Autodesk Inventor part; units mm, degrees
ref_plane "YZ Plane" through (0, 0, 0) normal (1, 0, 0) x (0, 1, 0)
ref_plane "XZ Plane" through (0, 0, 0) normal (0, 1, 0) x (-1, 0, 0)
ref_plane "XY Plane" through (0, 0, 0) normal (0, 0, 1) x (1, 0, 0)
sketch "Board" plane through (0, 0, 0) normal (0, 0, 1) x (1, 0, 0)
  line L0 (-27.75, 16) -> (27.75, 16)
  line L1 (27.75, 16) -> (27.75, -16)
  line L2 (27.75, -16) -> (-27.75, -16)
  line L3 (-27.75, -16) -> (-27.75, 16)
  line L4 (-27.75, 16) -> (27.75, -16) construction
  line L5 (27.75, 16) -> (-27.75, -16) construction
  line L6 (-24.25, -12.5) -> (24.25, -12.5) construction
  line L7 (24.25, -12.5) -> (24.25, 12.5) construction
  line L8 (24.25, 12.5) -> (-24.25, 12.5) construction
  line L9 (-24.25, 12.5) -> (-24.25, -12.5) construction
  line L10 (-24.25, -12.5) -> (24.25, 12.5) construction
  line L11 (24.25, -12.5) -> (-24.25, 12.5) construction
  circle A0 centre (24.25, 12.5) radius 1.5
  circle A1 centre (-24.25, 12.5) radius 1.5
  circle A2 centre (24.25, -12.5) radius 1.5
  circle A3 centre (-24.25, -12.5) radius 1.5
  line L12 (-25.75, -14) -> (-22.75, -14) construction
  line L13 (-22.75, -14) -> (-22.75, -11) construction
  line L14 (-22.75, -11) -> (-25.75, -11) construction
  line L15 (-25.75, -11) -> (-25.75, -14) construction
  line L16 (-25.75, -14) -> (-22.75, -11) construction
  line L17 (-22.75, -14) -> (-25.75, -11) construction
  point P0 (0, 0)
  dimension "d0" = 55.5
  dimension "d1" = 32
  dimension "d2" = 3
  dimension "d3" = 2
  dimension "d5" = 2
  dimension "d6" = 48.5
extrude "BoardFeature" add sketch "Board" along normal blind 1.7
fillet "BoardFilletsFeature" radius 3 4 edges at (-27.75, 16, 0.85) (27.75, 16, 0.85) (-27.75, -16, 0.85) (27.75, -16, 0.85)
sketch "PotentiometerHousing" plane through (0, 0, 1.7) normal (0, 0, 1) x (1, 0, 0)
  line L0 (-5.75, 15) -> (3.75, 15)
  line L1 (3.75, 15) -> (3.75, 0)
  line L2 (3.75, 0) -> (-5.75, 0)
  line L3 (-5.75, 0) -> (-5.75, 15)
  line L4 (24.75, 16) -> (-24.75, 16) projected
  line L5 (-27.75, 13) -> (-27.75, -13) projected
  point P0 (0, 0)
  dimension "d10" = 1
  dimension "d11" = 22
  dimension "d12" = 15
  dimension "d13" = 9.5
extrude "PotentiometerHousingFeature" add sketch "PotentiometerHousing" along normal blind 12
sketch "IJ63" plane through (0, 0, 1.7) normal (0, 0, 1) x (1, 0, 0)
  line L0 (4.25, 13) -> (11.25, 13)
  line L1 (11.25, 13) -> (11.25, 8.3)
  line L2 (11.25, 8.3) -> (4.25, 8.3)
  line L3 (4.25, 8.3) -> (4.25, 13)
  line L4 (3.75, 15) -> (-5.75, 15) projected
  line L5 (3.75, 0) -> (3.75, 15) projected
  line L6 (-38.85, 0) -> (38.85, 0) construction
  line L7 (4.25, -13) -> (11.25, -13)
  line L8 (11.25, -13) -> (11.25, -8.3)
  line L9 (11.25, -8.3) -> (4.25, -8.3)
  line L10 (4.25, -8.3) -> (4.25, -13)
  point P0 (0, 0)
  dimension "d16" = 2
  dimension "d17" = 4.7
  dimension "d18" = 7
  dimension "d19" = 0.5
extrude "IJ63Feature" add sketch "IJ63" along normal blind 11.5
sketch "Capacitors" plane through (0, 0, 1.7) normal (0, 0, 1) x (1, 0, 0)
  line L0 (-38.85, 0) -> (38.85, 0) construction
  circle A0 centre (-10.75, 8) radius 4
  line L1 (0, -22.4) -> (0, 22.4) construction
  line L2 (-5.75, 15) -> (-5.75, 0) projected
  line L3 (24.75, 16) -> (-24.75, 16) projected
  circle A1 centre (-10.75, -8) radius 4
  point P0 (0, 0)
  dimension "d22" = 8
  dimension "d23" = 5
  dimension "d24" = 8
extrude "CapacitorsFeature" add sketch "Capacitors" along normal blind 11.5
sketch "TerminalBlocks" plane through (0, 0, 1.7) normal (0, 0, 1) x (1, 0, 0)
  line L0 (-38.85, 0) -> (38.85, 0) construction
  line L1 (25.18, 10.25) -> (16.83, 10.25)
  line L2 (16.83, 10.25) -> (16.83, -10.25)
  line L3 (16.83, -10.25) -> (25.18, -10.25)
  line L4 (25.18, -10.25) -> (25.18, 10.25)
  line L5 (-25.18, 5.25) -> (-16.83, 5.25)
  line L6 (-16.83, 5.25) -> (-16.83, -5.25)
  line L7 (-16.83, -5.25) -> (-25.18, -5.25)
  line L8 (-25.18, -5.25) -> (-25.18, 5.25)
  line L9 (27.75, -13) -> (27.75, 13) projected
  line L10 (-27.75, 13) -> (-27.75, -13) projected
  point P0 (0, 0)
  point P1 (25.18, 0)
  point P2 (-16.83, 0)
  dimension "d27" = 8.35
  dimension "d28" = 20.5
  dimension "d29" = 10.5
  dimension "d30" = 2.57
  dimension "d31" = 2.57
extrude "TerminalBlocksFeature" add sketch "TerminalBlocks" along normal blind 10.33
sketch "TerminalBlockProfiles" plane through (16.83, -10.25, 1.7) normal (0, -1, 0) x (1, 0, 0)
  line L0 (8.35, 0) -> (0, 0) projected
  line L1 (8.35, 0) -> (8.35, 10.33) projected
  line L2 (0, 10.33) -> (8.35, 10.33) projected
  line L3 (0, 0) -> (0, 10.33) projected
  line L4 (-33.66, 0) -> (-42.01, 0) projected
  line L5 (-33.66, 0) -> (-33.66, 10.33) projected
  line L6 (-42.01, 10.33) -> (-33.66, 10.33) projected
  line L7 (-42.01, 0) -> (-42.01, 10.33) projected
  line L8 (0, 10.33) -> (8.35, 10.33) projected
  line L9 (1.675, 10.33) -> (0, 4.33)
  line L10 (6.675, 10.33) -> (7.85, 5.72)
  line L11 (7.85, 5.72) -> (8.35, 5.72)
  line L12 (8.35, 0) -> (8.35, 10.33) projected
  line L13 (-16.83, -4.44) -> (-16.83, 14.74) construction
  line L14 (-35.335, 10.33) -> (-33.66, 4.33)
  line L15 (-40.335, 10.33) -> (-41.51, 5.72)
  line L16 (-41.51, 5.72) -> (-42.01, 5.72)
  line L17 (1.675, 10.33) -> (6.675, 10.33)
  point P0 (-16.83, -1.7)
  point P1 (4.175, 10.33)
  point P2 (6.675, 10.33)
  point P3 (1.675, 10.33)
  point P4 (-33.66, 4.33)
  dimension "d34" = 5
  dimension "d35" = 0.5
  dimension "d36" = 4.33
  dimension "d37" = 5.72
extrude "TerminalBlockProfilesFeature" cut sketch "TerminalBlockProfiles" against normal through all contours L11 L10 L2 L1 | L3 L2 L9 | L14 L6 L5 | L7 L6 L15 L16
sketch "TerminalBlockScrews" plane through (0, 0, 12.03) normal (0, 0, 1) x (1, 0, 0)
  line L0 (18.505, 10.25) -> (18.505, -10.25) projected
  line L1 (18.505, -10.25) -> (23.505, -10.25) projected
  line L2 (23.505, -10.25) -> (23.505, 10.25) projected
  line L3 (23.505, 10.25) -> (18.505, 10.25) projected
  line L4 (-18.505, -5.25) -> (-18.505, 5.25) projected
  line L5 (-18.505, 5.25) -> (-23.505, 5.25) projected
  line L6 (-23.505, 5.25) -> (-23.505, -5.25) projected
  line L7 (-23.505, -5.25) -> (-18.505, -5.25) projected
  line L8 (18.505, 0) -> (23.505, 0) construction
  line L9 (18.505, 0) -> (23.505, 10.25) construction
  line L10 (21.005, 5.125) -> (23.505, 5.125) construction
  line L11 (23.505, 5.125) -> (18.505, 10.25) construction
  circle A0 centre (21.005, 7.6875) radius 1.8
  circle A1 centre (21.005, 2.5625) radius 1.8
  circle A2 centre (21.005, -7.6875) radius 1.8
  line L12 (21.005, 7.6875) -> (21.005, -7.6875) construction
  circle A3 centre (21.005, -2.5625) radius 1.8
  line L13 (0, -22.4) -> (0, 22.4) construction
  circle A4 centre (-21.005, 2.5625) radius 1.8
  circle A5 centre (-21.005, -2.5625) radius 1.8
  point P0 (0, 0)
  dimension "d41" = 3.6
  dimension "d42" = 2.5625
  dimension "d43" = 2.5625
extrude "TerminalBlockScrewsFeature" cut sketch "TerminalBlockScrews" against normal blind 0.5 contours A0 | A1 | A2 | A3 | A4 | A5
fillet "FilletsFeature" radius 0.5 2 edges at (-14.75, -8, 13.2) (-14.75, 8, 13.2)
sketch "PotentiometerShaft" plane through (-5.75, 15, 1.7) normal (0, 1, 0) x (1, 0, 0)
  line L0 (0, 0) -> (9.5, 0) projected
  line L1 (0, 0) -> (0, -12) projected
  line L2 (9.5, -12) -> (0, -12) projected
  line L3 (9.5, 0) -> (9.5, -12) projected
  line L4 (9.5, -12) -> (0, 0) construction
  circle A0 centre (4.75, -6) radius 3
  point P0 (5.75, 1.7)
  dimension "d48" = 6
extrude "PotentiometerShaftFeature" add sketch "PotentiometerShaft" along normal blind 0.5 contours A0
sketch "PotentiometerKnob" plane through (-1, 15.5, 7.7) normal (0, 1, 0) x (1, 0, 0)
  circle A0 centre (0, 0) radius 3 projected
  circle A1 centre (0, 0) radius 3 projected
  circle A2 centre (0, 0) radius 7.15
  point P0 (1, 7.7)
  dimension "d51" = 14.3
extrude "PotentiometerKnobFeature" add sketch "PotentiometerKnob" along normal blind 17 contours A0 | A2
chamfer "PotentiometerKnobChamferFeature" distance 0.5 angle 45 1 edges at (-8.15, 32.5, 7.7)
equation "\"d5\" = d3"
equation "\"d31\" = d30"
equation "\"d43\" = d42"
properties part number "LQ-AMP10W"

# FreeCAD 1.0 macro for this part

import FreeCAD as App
import Part
import Sketcher
from FreeCAD import Vector
Q = App.Units.Quantity


def edges_at(feature, points):
    """Names of the edges that pass closest to the given points."""
    edges = feature.Shape.Edges
    near = lambda p: min(range(len(edges)), key=lambda i: edges[i].distToShape(Part.Vertex(*p))[0])
    return sorted({f"Edge{near(p) + 1}" for p in points})


def add_polygon(sketch, points):
    """Adds a closed chain of lines whose ends are joined by coincident constraints."""
    first, n = sketch.GeometryCount, len(points)
    for a, b in zip(points, points[1:] + points[:1]):
        sketch.addGeometry(Part.LineSegment(App.Vector(*a, 0), App.Vector(*b, 0)), False)
    for i in range(n):
        sketch.addConstraint(Sketcher.Constraint("Coincident", first + i, 2, first + (i + 1) % n, 1))

doc = App.newDocument("Part")
body = doc.addObject("PartDesign::Body", "Body")

sketch1 = doc.addObject("Sketcher::SketchObject", "Sketch")
body.addObject(sketch1)
sketch1.AttachmentSupport = (doc.XY_Plane, [""])
sketch1.MapMode = "FlatFace"
add_polygon(sketch1, [(27.75, 16), (-27.75, 16), (-27.75, -16), (27.75, -16)])
sketch1.addGeometry(Part.Circle(Vector(-24.25, -12.5, 0), Vector(0, 0, 1), 1.5), False)
sketch1.addGeometry(Part.Circle(Vector(24.25, -12.5, 0), Vector(0, 0, 1), 1.5), False)
sketch1.addGeometry(Part.Circle(Vector(-24.25, 12.5, 0), Vector(0, 0, 1), 1.5), False)
sketch1.addGeometry(Part.Circle(Vector(24.25, 12.5, 0), Vector(0, 0, 1), 1.5), False)
sketch1.addConstraint([
    Sketcher.Constraint("Horizontal", 0),
    Sketcher.Constraint("Vertical", 1),
    Sketcher.Constraint("Horizontal", 2),
    Sketcher.Constraint("Vertical", 3),
    Sketcher.Constraint("Equal", 4, 5),
    Sketcher.Constraint("Equal", 5, 6),
    Sketcher.Constraint("Equal", 6, 7),
    Sketcher.Constraint("Symmetric", 5, 3, 6, 3, -1, 1),
    Sketcher.Constraint("Symmetric", 4, 3, 7, 3, -1, 1),
    Sketcher.Constraint("Symmetric", 0, 2, 2, 2, -1, 1),
    Sketcher.Constraint("Symmetric", 4, 3, 5, 3, -2),
    Sketcher.Constraint("Diameter", 4, 3.0),
    Sketcher.Constraint("DistanceY", 1, 2, 1, 1, 32.0),
    Sketcher.Constraint("DistanceX", 0, 2, 0, 1, 55.5),
    Sketcher.Constraint("DistanceX", 4, 3, 5, 3, 48.5),
    Sketcher.Constraint("DistanceY", 4, 3, 6, 3, 25.0),
])
pad1 = doc.addObject("PartDesign::Pad", "Pad")
body.addObject(pad1)
pad1.Profile = sketch1
pad1.Length = 1.7
doc.recompute()

fillet = doc.addObject("PartDesign::Fillet", "Fillet")
body.addObject(fillet)
fillet.Base = (pad1, edges_at(pad1, [
    (-27.75, 16, 0.85),
    (27.75, 16, 0.85),
    (-27.75, -16, 0.85),
    (27.75, -16, 0.85),
]))
fillet.Radius = 3

sketch2 = doc.addObject("Sketcher::SketchObject", "Sketch001")
body.addObject(sketch2)
sketch2.AttachmentSupport = (doc.XY_Plane, [""])
sketch2.MapMode = "FlatFace"
sketch2.AttachmentOffset = App.Placement(Vector(0, 0, 1.7), App.Rotation())
add_polygon(sketch2, [(3.75, 15), (-5.75, 15), (-5.75, 0), (3.75, 0)])
sketch2.addConstraint([
    Sketcher.Constraint("Horizontal", 0),
    Sketcher.Constraint("Vertical", 1),
    Sketcher.Constraint("Horizontal", 2),
    Sketcher.Constraint("Vertical", 3),
    Sketcher.Constraint("PointOnObject", 1, 2, -1),
    Sketcher.Constraint("DistanceY", 1, 2, 1, 1, 15.0),
    Sketcher.Constraint("DistanceX", 0, 2, 0, 1, 9.5),
    Sketcher.Constraint("DistanceX", 0, 2, -1, 1, 5.75),
])
pad2 = doc.addObject("PartDesign::Pad", "Pad001")
body.addObject(pad2)
pad2.Profile = sketch2
pad2.Length = 12

sketch3 = doc.addObject("Sketcher::SketchObject", "Sketch002")
body.addObject(sketch3)
sketch3.AttachmentSupport = (doc.XY_Plane, [""])
sketch3.MapMode = "FlatFace"
sketch3.AttachmentOffset = App.Placement(Vector(0, 0, 1.7), App.Rotation())
add_polygon(sketch3, [(11.25, 13), (4.25, 13), (4.25, 8.3), (11.25, 8.3)])
add_polygon(sketch3, [(4.25, -8.3), (4.25, -13), (11.25, -13), (11.25, -8.3)])
sketch3.addConstraint([
    Sketcher.Constraint("Horizontal", 0),
    Sketcher.Constraint("Vertical", 1),
    Sketcher.Constraint("Horizontal", 2),
    Sketcher.Constraint("Vertical", 3),
    Sketcher.Constraint("Vertical", 4),
    Sketcher.Constraint("Horizontal", 5),
    Sketcher.Constraint("Vertical", 6),
    Sketcher.Constraint("Horizontal", 7),
    Sketcher.Constraint("Symmetric", 0, 2, 4, 2, -1),
    Sketcher.Constraint("Symmetric", 2, 2, 6, 2, -1),
    Sketcher.Constraint("DistanceX", 0, 2, 0, 1, 7.0),
    Sketcher.Constraint("DistanceY", 1, 2, 1, 1, 4.7),
    Sketcher.Constraint("DistanceY", -1, 1, 0, 2, 13.0),
    Sketcher.Constraint("DistanceX", -1, 1, 0, 2, 4.25),
])
pad3 = doc.addObject("PartDesign::Pad", "Pad002")
body.addObject(pad3)
pad3.Profile = sketch3
pad3.Length = 11.5

sketch4 = doc.addObject("Sketcher::SketchObject", "Sketch003")
body.addObject(sketch4)
sketch4.AttachmentSupport = (doc.XY_Plane, [""])
sketch4.MapMode = "FlatFace"
sketch4.AttachmentOffset = App.Placement(Vector(0, 0, 1.7), App.Rotation())
sketch4.addGeometry([
    Part.Circle(Vector(-10.75, 8, 0), Vector(0, 0, 1), 4),
    Part.Circle(Vector(-10.75, -8, 0), Vector(0, 0, 1), 4),
], False)
sketch4.addConstraint([
    Sketcher.Constraint("Equal", 0, 1),
    Sketcher.Constraint("Symmetric", 0, 3, 1, 3, -1),
    Sketcher.Constraint("Diameter", 0, 8.0),
    Sketcher.Constraint("DistanceY", -1, 1, 0, 3, 8.0),
    Sketcher.Constraint("DistanceX", 0, 3, -1, 1, 10.75),
])
pad4 = doc.addObject("PartDesign::Pad", "Pad003")
body.addObject(pad4)
pad4.Profile = sketch4
pad4.Length = 11.5

sketch5 = doc.addObject("Sketcher::SketchObject", "Sketch004")
body.addObject(sketch5)
sketch5.AttachmentSupport = (doc.XY_Plane, [""])
sketch5.MapMode = "FlatFace"
sketch5.AttachmentOffset = App.Placement(Vector(0, 0, 1.7), App.Rotation())
add_polygon(sketch5, [(25.18, -10.25), (25.18, 10.25), (16.83, 10.25), (16.83, -10.25)])
add_polygon(sketch5, [(-16.83, 5.25), (-25.18, 5.25), (-25.18, -5.25), (-16.83, -5.25)])
sketch5.addConstraint([
    Sketcher.Constraint("Vertical", 0),
    Sketcher.Constraint("Horizontal", 1),
    Sketcher.Constraint("Vertical", 2),
    Sketcher.Constraint("Horizontal", 3),
    Sketcher.Constraint("Horizontal", 4),
    Sketcher.Constraint("Vertical", 5),
    Sketcher.Constraint("Horizontal", 6),
    Sketcher.Constraint("Vertical", 7),
    Sketcher.Constraint("Equal", 3, 4),
    Sketcher.Constraint("DistanceY", 0, 1, 0, 2, 20.5),
    Sketcher.Constraint("DistanceY", 5, 2, 5, 1, 10.5),
    Sketcher.Constraint("DistanceX", 1, 2, 1, 1, 8.35),
    Sketcher.Constraint("DistanceY", 4, 2, 1, 2, 5.0),
    Sketcher.Constraint("DistanceX", -1, 1, 0, 2, 25.18),
    Sketcher.Constraint("DistanceY", -1, 1, 0, 2, 10.25),
    Sketcher.Constraint("DistanceX", 4, 2, -1, 1, 25.18),
])
pad5 = doc.addObject("PartDesign::Pad", "Pad004")
body.addObject(pad5)
pad5.Profile = sketch5
pad5.Length = 10.33

sketch6 = doc.addObject("Sketcher::SketchObject", "Sketch005")
body.addObject(sketch6)
sketch6.AttachmentSupport = (doc.XZ_Plane, [""])
sketch6.MapMode = "FlatFace"
sketch6.AttachmentOffset = App.Placement(Vector(0, 0, 10.25), App.Rotation())
add_polygon(sketch6, [(24.68, 7.42), (25.18, 7.42), (25.18, 12.03), (23.505, 12.03)])
add_polygon(sketch6, [(16.83, 12.03), (16.83, 6.03), (18.505, 12.03)])
add_polygon(sketch6, [(-18.505, 12.03), (-16.83, 6.03), (-16.83, 12.03)])
add_polygon(sketch6, [(-25.18, 12.03), (-25.18, 7.42), (-24.68, 7.42), (-23.505, 12.03)])
sketch6.addConstraint([
    Sketcher.Constraint("Horizontal", 0),
    Sketcher.Constraint("Vertical", 1),
    Sketcher.Constraint("Horizontal", 2),
    Sketcher.Constraint("Vertical", 4),
    Sketcher.Constraint("Horizontal", 6),
    Sketcher.Constraint("Vertical", 8),
    Sketcher.Constraint("Horizontal", 9),
    Sketcher.Constraint("Vertical", 10),
    Sketcher.Constraint("Horizontal", 11),
    Sketcher.Constraint("Horizontal", 13),
    Sketcher.Constraint("Symmetric", 4, 2, 7, 2, -2),
    Sketcher.Constraint("Symmetric", 5, 2, 9, 2, -2),
    Sketcher.Constraint("Symmetric", 0, 2, 10, 2, -2),
    Sketcher.Constraint("Symmetric", 2, 2, 12, 2, -2),
    Sketcher.Constraint("Horizontal", 2, 2, 5, 2),
    Sketcher.Constraint("Equal", 2, 6),
    Sketcher.Constraint("Equal", 0, 11),
    Sketcher.Constraint("DistanceX", 0, 1, 0, 2, 0.5),
    Sketcher.Constraint("DistanceX", 5, 2, 2, 2, 5.0),
    Sketcher.Constraint("DistanceY", 4, 2, 4, 1, 6.0),
    Sketcher.Constraint("Angle", 3, Q("-75.7009 deg")),
    Sketcher.Constraint("DistanceY", 1, 1, 1, 2, 4.61),
    Sketcher.Constraint("DistanceX", -1, 1, 0, 2, 25.18),
    Sketcher.Constraint("DistanceY", -1, 1, 0, 2, 7.42),
])
pocket1 = doc.addObject("PartDesign::Pocket", "Pocket")
body.addObject(pocket1)
pocket1.Profile = sketch6
pocket1.Type = "ThroughAll"

sketch7 = doc.addObject("Sketcher::SketchObject", "Sketch006")
body.addObject(sketch7)
sketch7.AttachmentSupport = (doc.XY_Plane, [""])
sketch7.MapMode = "FlatFace"
sketch7.AttachmentOffset = App.Placement(Vector(0, 0, 12.03), App.Rotation())
sketch7.addGeometry([
    Part.Circle(Vector(21.005, 7.6875, 0), Vector(0, 0, 1), 1.8),
    Part.Circle(Vector(21.005, 2.5625, 0), Vector(0, 0, 1), 1.8),
    Part.Circle(Vector(21.005, -7.6875, 0), Vector(0, 0, 1), 1.8),
    Part.Circle(Vector(21.005, -2.5625, 0), Vector(0, 0, 1), 1.8),
    Part.Circle(Vector(-21.005, 2.5625, 0), Vector(0, 0, 1), 1.8),
    Part.Circle(Vector(-21.005, -2.5625, 0), Vector(0, 0, 1), 1.8),
], False)
sketch7.addConstraint([
    Sketcher.Constraint("Equal", 0, 1),
    Sketcher.Constraint("Equal", 1, 2),
    Sketcher.Constraint("Equal", 2, 3),
    Sketcher.Constraint("Equal", 3, 4),
    Sketcher.Constraint("Equal", 4, 5),
    Sketcher.Constraint("Symmetric", 3, 3, 4, 3, -1, 1),
    Sketcher.Constraint("Symmetric", 1, 3, 5, 3, -1, 1),
    Sketcher.Constraint("Symmetric", 1, 3, 4, 3, -2),
    Sketcher.Constraint("Symmetric", 0, 3, 2, 3, -1),
    Sketcher.Constraint("Vertical", 0, 3, 1, 3),
    Sketcher.Constraint("Diameter", 0, 3.6),
    Sketcher.Constraint("DistanceY", -1, 1, 1, 3, 2.5625),
    Sketcher.Constraint("DistanceY", 2, 3, 1, 3, 10.25),
    Sketcher.Constraint("DistanceX", 4, 3, 1, 3, 42.01),
])
pocket2 = doc.addObject("PartDesign::Pocket", "Pocket001")
body.addObject(pocket2)
pocket2.Profile = sketch7
pocket2.Length = 0.5
doc.recompute()

fillet2 = doc.addObject("PartDesign::Fillet", "Fillet001")
body.addObject(fillet2)
fillet2.Base = (pocket2, edges_at(pocket2, [(-14.75, -8, 13.2), (-14.75, 8, 13.2)]))
fillet2.Radius = 0.5

sketch8 = doc.addObject("Sketcher::SketchObject", "Sketch007")
body.addObject(sketch8)
sketch8.AttachmentSupport = (doc.XZ_Plane, [""])
sketch8.MapMode = "FlatFace"
sketch8.AttachmentOffset = App.Placement(Vector(0, 0, -15), App.Rotation())
sketch8.addGeometry(Part.Circle(Vector(-1, 7.7, 0), Vector(0, 0, 1), 3), False)
sketch8.addConstraint([
    Sketcher.Constraint("Diameter", 0, 6.0),
    Sketcher.Constraint("DistanceX", 0, 3, -1, 1, 1.0),
    Sketcher.Constraint("DistanceY", -1, 1, 0, 3, 7.7),
])
pad6 = doc.addObject("PartDesign::Pad", "Pad005")
body.addObject(pad6)
pad6.Profile = sketch8
pad6.Length = 0.5
pad6.Reversed = True

sketch9 = doc.addObject("Sketcher::SketchObject", "Sketch008")
body.addObject(sketch9)
sketch9.AttachmentSupport = (doc.XZ_Plane, [""])
sketch9.MapMode = "FlatFace"
sketch9.AttachmentOffset = App.Placement(Vector(0, 0, -15.5), App.Rotation())
sketch9.addGeometry(Part.Circle(Vector(-1, 7.7, 0), Vector(0, 0, 1), 7.15), False)
sketch9.addConstraint([
    Sketcher.Constraint("Diameter", 0, 14.3),
    Sketcher.Constraint("DistanceX", 0, 3, -1, 1, 1.0),
    Sketcher.Constraint("DistanceY", -1, 1, 0, 3, 7.7),
])
pad7 = doc.addObject("PartDesign::Pad", "Pad006")
body.addObject(pad7)
pad7.Profile = sketch9
pad7.Length = 17
pad7.Reversed = True
doc.recompute()

chamfer = doc.addObject("PartDesign::Chamfer", "Chamfer")
body.addObject(chamfer)
chamfer.Base = (pad7, edges_at(pad7, [(-8.15, 32.5, 7.7)]))
chamfer.Size = 0.5

doc.recompute()
